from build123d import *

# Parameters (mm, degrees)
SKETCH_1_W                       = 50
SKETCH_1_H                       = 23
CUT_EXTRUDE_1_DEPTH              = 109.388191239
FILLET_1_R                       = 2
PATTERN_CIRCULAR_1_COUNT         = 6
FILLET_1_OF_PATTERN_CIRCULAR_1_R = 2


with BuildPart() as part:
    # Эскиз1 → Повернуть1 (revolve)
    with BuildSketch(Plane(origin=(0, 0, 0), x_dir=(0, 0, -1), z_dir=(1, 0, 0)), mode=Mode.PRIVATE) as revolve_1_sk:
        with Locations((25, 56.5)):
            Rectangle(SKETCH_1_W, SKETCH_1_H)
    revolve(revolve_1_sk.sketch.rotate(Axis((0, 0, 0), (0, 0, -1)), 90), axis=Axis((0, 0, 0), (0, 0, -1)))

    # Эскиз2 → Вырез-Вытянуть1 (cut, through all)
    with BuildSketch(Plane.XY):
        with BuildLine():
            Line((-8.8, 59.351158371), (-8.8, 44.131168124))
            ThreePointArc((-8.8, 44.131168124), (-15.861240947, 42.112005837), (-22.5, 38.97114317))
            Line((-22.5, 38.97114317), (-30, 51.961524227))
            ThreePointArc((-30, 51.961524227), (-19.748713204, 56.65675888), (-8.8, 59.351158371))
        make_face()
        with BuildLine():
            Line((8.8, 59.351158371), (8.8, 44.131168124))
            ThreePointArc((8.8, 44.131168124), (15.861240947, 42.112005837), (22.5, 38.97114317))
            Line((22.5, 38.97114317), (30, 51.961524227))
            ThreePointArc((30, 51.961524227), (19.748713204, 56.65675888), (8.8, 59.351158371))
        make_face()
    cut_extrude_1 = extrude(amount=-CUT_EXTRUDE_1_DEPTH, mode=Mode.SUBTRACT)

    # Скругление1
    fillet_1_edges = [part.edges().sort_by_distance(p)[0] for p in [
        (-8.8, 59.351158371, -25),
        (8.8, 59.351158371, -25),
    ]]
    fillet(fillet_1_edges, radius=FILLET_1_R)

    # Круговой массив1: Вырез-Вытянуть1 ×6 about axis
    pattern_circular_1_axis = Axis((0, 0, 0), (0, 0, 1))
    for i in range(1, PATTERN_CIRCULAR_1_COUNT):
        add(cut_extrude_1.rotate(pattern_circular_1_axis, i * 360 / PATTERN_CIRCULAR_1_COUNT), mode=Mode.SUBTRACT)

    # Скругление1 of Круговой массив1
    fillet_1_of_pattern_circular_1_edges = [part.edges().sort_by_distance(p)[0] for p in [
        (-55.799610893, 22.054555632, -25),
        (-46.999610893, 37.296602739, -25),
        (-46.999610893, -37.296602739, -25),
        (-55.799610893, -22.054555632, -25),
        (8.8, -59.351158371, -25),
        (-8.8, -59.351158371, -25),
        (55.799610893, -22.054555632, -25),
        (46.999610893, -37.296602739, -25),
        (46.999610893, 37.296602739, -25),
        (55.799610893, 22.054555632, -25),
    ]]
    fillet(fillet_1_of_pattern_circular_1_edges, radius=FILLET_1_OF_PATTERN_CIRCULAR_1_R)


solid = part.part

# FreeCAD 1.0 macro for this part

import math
import FreeCAD as App
import Part
import Sketcher
from FreeCAD import Vector
Q = App.Units.Quantity


def edges_at(feature, points):
    """Names of the edges that pass closest to the given points."""
    edges = feature.Shape.Edges
    near = lambda p: min(range(len(edges)), key=lambda i: edges[i].distToShape(Part.Vertex(*p))[0])
    return sorted({f"Edge{near(p) + 1}" for p in points})

doc = App.newDocument("Part")
params = doc.addObject("Spreadsheet::Sheet", "Params")
for row, (alias, value) in enumerate([
    ("sketch1_width", "23 mm"),
    ("sketch1_height", "50 mm"),
    ("revolution_angle", "360 deg"),
    ("sketch2_radius", "60 mm"),
    ("sketch2_radius2", "45 mm"),
    ("fillet_radius", "2 mm"),
    ("fillet2_radius", "2 mm"),
], start=1):
    params.set(f"A{row}", alias)
    params.set(f"B{row}", "=" + value)
    params.setAlias(f"B{row}", alias)

body = doc.addObject("PartDesign::Body", "Body")

# Sketch on YZ plane
sketch1 = body.newObject("Sketcher::SketchObject", "Sketch")
sketch1.AttachmentSupport = (doc.getObject("YZ_Plane"), [""])
sketch1.MapMode = "FlatFace"
sketch1.addGeometry([
    Part.LineSegment(Vector(68, 0, 0), Vector(45, 0, 0)),
    Part.LineSegment(Vector(45, 0, 0), Vector(45, -50, 0)),
    Part.LineSegment(Vector(45, -50, 0), Vector(68, -50, 0)),
    Part.LineSegment(Vector(68, -50, 0), Vector(68, 0, 0)),
], False)
sketch1.addConstraint([
    Sketcher.Constraint("Coincident", 0, 2, 1, 1),
    Sketcher.Constraint("Coincident", 1, 2, 2, 1),
    Sketcher.Constraint("Coincident", 2, 2, 3, 1),
    Sketcher.Constraint("Coincident", 3, 2, 0, 1),
    Sketcher.Constraint("Horizontal", 0),
    Sketcher.Constraint("Vertical", 1),
    Sketcher.Constraint("Horizontal", 2),
    Sketcher.Constraint("Vertical", 3),
    Sketcher.Constraint("PointOnObject", 0, 2, -1),
    Sketcher.Constraint("DistanceX", 0, 2, 0, 1, 23.0),
    Sketcher.Constraint("DistanceY", 1, 2, 1, 1, 50.0),
    Sketcher.Constraint("DistanceX", -1, 1, 0, 2, 45.0),
])
sketch1.setExpression("Constraints[9]", "Params.sketch1_width")
sketch1.setExpression("Constraints[10]", "Params.sketch1_height")
revolution = body.newObject("PartDesign::Revolution", "Revolution")
revolution.Profile = sketch1
revolution.ReferenceAxis = (sketch1, ["V_Axis"])
revolution.setExpression("Angle", "Params.revolution_angle")

# Sketch on XY plane
sketch2 = body.newObject("Sketcher::SketchObject", "Sketch001")
sketch2.AttachmentSupport = (doc.getObject("XY_Plane"), [""])
sketch2.MapMode = "FlatFace"
sketch2.addGeometry([
    Part.LineSegment(Vector(-9, 44, 0), Vector(-9, 59, 0)),  # 0
    Part.ArcOfCircle(Part.Circle(Vector(0, 0, 0), Vector(0, 0, 1), 60), math.radians(98), math.radians(120)),  # 1
    Part.LineSegment(Vector(-30, 52, 0), Vector(-22, 39, 0)),  # 2
    Part.ArcOfCircle(Part.Circle(Vector(0, 0, 0), Vector(0, 0, 1), 45), math.radians(101.28), math.radians(120)),  # 3
    Part.LineSegment(Vector(9, 59, 0), Vector(9, 44, 0)),  # 4
    Part.ArcOfCircle(Part.Circle(Vector(0, 0, 0), Vector(0, 0, 1), 45), math.radians(60), math.radians(78.72)),  # 5
    Part.LineSegment(Vector(22, 39, 0), Vector(30, 52, 0)),  # 6
    Part.ArcOfCircle(Part.Circle(Vector(0, 0, 0), Vector(0, 0, 1), 60), math.radians(60), math.radians(82)),  # 7
], False)
sketch2.addConstraint([
    Sketcher.Constraint("Coincident", 0, 2, 1, 1),
    Sketcher.Constraint("Coincident", 1, 2, 2, 1),
    Sketcher.Constraint("Coincident", 2, 2, 3, 2),
    Sketcher.Constraint("Coincident", 3, 1, 0, 1),
    Sketcher.Constraint("Coincident", 4, 2, 5, 2),
    Sketcher.Constraint("Coincident", 5, 1, 6, 1),
    Sketcher.Constraint("Coincident", 6, 2, 7, 1),
    Sketcher.Constraint("Coincident", 7, 2, 4, 1),
    Sketcher.Constraint("Vertical", 0),
    Sketcher.Constraint("Vertical", 4),
    Sketcher.Constraint("Coincident", 1, 3, -1, 1),
    Sketcher.Constraint("Coincident", 3, 3, -1, 1),
    Sketcher.Constraint("Coincident", 5, 3, -1, 1),
    Sketcher.Constraint("Coincident", 7, 3, -1, 1),
    Sketcher.Constraint("Equal", 3, 5),
    Sketcher.Constraint("Equal", 1, 7),
    Sketcher.Constraint("Horizontal", 3, 1, 4, 2),
    Sketcher.Constraint("Horizontal", 2, 2, 5, 1),
    Sketcher.Constraint("Horizontal", 1, 2, 6, 2),
    Sketcher.Constraint("Radius", 1, 60.0),
    Sketcher.Constraint("Radius", 3, 45.0),
    Sketcher.Constraint("Angle", 2, Q("-60 deg")),
    Sketcher.Constraint("DistanceX", 1, 2, -1, 1, 30.0),
    Sketcher.Constraint("DistanceX", 0, 2, -1, 1, 8.8),
])
sketch2.setExpression("Constraints[19]", "Params.sketch2_radius")
sketch2.setExpression("Constraints[20]", "Params.sketch2_radius2")
pocket1 = body.newObject("PartDesign::Pocket", "Pocket")
pocket1.Profile = sketch2
pocket1.Type = "ThroughAll"
doc.recompute()

fillet = body.newObject("PartDesign::Fillet", "Fillet")
fillet.Base = (pocket1, edges_at(pocket1, [(-8.8, 59.351, -25), (8.8, 59.351, -25)]))
fillet.setExpression("Radius", "Params.fillet_radius")
doc.recompute()

polarpattern = body.newObject("PartDesign::PolarPattern", "PolarPattern")
polarpattern.Originals = [pocket1]
polarpattern.Axis = (doc.getObject("Z_Axis"), [""])
polarpattern.Angle = 360
polarpattern.Occurrences = 6
body.Tip = polarpattern
doc.recompute()

fillet2 = body.newObject("PartDesign::Fillet", "Fillet001")
fillet2.Base = (polarpattern, edges_at(polarpattern, [
    (-55.8, 22.055, -25),
    (-47, 37.297, -25),
    (-47, -37.297, -25),
    (-55.8, -22.055, -25),
    (8.8, -59.351, -25),
    (-8.8, -59.351, -25),
    (55.8, -22.055, -25),
    (47, -37.297, -25),
    (47, 37.297, -25),
    (55.8, 22.055, -25),
]))
fillet2.setExpression("Radius", "Params.fillet2_radius")

doc.recompute()
